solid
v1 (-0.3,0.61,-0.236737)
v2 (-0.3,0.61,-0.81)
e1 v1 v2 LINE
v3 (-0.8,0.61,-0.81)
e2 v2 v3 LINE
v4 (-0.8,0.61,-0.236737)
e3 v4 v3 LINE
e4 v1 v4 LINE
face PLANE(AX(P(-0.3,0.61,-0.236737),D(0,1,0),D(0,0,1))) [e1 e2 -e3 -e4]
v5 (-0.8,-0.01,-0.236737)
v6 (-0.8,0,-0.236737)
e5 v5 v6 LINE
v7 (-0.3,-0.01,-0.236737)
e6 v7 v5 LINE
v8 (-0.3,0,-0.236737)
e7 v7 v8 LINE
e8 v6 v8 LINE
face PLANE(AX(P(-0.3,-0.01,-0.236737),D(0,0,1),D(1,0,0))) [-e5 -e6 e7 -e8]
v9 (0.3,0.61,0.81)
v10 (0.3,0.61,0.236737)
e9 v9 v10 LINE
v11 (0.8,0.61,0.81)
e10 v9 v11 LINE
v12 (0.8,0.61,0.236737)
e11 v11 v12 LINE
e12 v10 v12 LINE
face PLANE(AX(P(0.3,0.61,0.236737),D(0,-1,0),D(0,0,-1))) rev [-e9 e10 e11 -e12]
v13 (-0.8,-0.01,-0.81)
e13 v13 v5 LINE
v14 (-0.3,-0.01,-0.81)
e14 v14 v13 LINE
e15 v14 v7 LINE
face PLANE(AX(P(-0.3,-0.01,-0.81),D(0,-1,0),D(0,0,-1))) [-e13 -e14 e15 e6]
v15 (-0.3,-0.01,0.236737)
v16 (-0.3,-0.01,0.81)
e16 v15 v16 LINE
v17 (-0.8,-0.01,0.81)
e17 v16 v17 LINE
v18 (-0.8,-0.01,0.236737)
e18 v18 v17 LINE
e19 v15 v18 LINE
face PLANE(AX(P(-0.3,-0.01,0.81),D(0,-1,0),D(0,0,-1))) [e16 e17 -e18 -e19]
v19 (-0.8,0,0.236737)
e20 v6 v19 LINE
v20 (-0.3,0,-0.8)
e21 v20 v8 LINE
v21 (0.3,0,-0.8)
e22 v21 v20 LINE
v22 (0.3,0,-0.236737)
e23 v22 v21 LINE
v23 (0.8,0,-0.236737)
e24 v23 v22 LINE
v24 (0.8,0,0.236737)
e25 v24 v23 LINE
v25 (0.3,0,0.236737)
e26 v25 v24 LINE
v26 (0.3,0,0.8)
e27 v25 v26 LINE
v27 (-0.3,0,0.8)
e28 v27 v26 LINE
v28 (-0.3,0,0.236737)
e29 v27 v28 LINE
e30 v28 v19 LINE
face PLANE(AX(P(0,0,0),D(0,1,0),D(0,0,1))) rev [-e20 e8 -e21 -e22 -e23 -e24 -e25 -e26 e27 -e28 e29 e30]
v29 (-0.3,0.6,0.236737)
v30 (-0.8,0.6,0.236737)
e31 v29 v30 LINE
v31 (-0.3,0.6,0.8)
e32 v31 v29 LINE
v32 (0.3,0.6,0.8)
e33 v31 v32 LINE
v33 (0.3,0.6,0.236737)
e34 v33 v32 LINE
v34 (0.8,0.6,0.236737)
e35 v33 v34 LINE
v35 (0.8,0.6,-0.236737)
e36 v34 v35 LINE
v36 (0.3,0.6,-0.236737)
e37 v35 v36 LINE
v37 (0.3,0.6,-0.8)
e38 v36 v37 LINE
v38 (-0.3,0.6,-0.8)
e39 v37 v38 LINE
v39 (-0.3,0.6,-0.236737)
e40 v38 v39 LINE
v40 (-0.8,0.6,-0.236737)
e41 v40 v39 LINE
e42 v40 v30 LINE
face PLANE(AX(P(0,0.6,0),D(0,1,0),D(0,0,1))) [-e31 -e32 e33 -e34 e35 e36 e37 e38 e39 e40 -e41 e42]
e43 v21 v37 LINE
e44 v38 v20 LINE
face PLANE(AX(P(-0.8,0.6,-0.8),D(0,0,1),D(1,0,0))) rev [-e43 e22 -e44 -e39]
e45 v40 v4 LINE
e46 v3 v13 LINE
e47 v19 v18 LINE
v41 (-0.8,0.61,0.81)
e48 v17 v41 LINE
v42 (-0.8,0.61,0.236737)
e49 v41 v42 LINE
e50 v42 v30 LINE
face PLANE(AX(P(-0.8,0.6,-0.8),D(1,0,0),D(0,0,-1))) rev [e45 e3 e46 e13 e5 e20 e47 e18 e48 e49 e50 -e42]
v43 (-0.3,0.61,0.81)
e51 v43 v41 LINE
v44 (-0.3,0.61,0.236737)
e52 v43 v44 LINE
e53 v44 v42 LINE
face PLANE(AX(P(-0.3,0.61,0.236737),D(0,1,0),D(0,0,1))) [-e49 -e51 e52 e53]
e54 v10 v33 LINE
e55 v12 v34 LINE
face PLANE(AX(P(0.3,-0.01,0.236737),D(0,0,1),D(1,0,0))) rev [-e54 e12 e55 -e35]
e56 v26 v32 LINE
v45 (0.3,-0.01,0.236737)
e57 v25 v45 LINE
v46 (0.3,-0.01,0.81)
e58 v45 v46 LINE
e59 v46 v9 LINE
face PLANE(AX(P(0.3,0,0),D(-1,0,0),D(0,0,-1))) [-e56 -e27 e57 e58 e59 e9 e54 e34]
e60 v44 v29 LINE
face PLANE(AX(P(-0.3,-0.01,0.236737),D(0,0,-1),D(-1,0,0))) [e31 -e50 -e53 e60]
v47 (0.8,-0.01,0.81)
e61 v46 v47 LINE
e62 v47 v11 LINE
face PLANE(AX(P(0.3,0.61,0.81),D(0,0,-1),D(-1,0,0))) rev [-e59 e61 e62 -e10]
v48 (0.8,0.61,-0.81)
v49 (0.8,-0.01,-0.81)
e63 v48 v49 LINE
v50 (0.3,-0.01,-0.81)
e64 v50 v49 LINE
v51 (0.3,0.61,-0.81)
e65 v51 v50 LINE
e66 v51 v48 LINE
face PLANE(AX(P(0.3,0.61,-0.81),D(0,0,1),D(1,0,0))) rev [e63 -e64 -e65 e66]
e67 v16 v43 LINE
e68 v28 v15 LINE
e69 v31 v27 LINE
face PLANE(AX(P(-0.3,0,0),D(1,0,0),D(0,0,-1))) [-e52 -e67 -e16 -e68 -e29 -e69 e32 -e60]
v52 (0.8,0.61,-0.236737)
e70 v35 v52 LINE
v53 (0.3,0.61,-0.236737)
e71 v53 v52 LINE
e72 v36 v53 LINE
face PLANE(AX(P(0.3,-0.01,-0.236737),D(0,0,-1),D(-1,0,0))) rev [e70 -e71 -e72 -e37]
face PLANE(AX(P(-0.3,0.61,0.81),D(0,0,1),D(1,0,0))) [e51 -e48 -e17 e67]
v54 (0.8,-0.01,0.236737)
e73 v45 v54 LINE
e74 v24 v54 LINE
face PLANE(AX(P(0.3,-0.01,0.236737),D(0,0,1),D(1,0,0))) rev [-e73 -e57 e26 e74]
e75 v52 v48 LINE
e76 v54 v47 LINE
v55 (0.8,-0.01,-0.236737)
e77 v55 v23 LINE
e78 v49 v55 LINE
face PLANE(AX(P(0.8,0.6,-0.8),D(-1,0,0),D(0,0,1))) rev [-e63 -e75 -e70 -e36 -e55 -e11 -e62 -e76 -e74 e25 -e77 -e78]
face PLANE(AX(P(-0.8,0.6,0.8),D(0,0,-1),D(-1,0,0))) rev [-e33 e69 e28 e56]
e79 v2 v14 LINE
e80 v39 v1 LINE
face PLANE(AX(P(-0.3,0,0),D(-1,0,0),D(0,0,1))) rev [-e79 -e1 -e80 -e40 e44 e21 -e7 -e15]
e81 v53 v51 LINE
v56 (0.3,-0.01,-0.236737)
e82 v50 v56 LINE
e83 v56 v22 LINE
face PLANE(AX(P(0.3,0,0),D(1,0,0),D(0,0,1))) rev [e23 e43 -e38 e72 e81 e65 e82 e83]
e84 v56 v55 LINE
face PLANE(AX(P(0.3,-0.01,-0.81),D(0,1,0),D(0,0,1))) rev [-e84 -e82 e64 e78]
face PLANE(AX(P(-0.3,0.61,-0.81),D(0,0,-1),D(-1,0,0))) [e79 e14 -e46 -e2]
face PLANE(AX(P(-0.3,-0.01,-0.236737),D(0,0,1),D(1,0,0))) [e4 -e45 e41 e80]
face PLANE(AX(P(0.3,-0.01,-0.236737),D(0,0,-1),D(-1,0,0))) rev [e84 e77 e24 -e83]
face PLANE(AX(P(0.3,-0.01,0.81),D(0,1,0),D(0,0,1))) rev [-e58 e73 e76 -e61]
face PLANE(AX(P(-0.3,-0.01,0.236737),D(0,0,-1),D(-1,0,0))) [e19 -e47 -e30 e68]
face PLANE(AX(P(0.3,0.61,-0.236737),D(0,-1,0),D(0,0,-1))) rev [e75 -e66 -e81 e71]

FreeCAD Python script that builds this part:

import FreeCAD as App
import Part
import Sketcher
Q = App.Units.Quantity

doc = App.newDocument("Part")
body = doc.addObject("PartDesign::Body", "Body")

# Sketch on XZ plane
sketch1 = body.newObject("Sketcher::SketchObject", "Sketch")
sketch1.AttachmentSupport = (doc.getObject("XZ_Plane"), [""])
sketch1.MapMode = "FlatFace"
sketch1.addGeometry(Part.LineSegment(App.Vector(-0.8, -0.8, 0), App.Vector(-0.8, 0.8, 0)), False)
sketch1.addGeometry(Part.LineSegment(App.Vector(-0.8, 0.8, 0), App.Vector(0.8, 0.8, 0)), False)
sketch1.addGeometry(Part.LineSegment(App.Vector(0.8, 0.8, 0), App.Vector(0.8, -0.8, 0)), False)
sketch1.addGeometry(Part.LineSegment(App.Vector(0.8, -0.8, 0), App.Vector(-0.8, -0.8, 0)), False)
sketch1.addConstraint(Sketcher.Constraint("Coincident", 0, 2, 1, 1))
sketch1.addConstraint(Sketcher.Constraint("Coincident", 1, 2, 2, 1))
sketch1.addConstraint(Sketcher.Constraint("Coincident", 2, 2, 3, 1))
sketch1.addConstraint(Sketcher.Constraint("Coincident", 3, 2, 0, 1))
sketch1.addConstraint(Sketcher.Constraint("Vertical", 0))
sketch1.addConstraint(Sketcher.Constraint("Horizontal", 1))
sketch1.addConstraint(Sketcher.Constraint("Vertical", 2))
sketch1.addConstraint(Sketcher.Constraint("Horizontal", 3))
sketch1.addConstraint(Sketcher.Constraint("Symmetric", 0, 2, 2, 2, -1, 1))
sketch1.addConstraint(Sketcher.Constraint("Equal", 3, 0))
sketch1.addConstraint(Sketcher.Constraint("DistanceX", 1, 1, 1, 2, Q("1.6 mm")))
pad1 = body.newObject("PartDesign::Pad", "Pad")
pad1.Profile = sketch1
pad1.Length = 0.6
pad1.Reversed = True

# Sketch on YZ plane
sketch2 = body.newObject("Sketcher::SketchObject", "Sketch001")
sketch2.AttachmentSupport = (doc.getObject("YZ_Plane"), [""])
sketch2.MapMode = "FlatFace"
sketch2.AttachmentOffset = App.Placement(App.Vector(0, 0, -0.8), App.Rotation())
sketch2.addGeometry(Part.LineSegment(App.Vector(0.6, 0.2, 0), App.Vector(0, 0.2, 0)), False)
sketch2.addGeometry(Part.LineSegment(App.Vector(0, 0.2, 0), App.Vector(0, 0.8, 0)), False)
sketch2.addGeometry(Part.LineSegment(App.Vector(0, 0.8, 0), App.Vector(0.6, 0.8, 0)), False)
sketch2.addGeometry(Part.LineSegment(App.Vector(0.6, 0.8, 0), App.Vector(0.6, 0.2, 0)), False)
sketch2.addGeometry(Part.LineSegment(App.Vector(0.6, -0.8, 0), App.Vector(0, -0.8, 0)), False)
sketch2.addGeometry(Part.LineSegment(App.Vector(0, -0.8, 0), App.Vector(0, -0.2, 0)), False)
sketch2.addGeometry(Part.LineSegment(App.Vector(0, -0.2, 0), App.Vector(0.6, -0.2, 0)), False)
sketch2.addGeometry(Part.LineSegment(App.Vector(0.6, -0.2, 0), App.Vector(0.6, -0.8, 0)), False)
sketch2.addConstraint(Sketcher.Constraint("Coincident", 0, 2, 1, 1))
sketch2.addConstraint(Sketcher.Constraint("Coincident", 1, 2, 2, 1))
sketch2.addConstraint(Sketcher.Constraint("Coincident", 2, 2, 3, 1))
sketch2.addConstraint(Sketcher.Constraint("Coincident", 3, 2, 0, 1))
sketch2.addConstraint(Sketcher.Constraint("Coincident", 4, 2, 5, 1))
sketch2.addConstraint(Sketcher.Constraint("Coincident", 5, 2, 6, 1))
sketch2.addConstraint(Sketcher.Constraint("Coincident", 6, 2, 7, 1))
sketch2.addConstraint(Sketcher.Constraint("Coincident", 7, 2, 4, 1))
sketch2.addConstraint(Sketcher.Constraint("Horizontal", 0))
sketch2.addConstraint(Sketcher.Constraint("Vertical", 1))
sketch2.addConstraint(Sketcher.Constraint("Horizontal", 2))
sketch2.addConstraint(Sketcher.Constraint("Vertical", 3))
sketch2.addConstraint(Sketcher.Constraint("Horizontal", 4))
sketch2.addConstraint(Sketcher.Constraint("Vertical", 5))
sketch2.addConstraint(Sketcher.Constraint("Horizontal", 6))
sketch2.addConstraint(Sketcher.Constraint("Vertical", 7))
sketch2.addConstraint(Sketcher.Constraint("Symmetric", 1, 2, 4, 2, -1))
sketch2.addConstraint(Sketcher.Constraint("Symmetric", 3, 2, 6, 2, -1))
sketch2.addConstraint(Sketcher.Constraint("DistanceX", 0, 2, 0, 1, Q("0.62 mm")))
sketch2.addConstraint(Sketcher.Constraint("DistanceX", 0, 2, -1, 1, Q("0.01 mm")))
sketch2.addConstraint(Sketcher.Constraint("DistanceY", -1, 1, 1, 2, Q("0.81 mm")))
sketch2.addConstraint(Sketcher.Constraint("DistanceY", 1, 1, 1, 2, Q("0.573263 mm")))
pad2 = body.newObject("PartDesign::Pad", "Pad001")
pad2.Profile = sketch2
pad2.Length = 0.5
doc.recompute()

mirrored = body.newObject("PartDesign::Mirrored", "Mirrored")
mirrored.Originals = [pad2]
mirrored.MirrorPlane = (doc.getObject("YZ_Plane"), [""])
body.Tip = mirrored

doc.recompute()
